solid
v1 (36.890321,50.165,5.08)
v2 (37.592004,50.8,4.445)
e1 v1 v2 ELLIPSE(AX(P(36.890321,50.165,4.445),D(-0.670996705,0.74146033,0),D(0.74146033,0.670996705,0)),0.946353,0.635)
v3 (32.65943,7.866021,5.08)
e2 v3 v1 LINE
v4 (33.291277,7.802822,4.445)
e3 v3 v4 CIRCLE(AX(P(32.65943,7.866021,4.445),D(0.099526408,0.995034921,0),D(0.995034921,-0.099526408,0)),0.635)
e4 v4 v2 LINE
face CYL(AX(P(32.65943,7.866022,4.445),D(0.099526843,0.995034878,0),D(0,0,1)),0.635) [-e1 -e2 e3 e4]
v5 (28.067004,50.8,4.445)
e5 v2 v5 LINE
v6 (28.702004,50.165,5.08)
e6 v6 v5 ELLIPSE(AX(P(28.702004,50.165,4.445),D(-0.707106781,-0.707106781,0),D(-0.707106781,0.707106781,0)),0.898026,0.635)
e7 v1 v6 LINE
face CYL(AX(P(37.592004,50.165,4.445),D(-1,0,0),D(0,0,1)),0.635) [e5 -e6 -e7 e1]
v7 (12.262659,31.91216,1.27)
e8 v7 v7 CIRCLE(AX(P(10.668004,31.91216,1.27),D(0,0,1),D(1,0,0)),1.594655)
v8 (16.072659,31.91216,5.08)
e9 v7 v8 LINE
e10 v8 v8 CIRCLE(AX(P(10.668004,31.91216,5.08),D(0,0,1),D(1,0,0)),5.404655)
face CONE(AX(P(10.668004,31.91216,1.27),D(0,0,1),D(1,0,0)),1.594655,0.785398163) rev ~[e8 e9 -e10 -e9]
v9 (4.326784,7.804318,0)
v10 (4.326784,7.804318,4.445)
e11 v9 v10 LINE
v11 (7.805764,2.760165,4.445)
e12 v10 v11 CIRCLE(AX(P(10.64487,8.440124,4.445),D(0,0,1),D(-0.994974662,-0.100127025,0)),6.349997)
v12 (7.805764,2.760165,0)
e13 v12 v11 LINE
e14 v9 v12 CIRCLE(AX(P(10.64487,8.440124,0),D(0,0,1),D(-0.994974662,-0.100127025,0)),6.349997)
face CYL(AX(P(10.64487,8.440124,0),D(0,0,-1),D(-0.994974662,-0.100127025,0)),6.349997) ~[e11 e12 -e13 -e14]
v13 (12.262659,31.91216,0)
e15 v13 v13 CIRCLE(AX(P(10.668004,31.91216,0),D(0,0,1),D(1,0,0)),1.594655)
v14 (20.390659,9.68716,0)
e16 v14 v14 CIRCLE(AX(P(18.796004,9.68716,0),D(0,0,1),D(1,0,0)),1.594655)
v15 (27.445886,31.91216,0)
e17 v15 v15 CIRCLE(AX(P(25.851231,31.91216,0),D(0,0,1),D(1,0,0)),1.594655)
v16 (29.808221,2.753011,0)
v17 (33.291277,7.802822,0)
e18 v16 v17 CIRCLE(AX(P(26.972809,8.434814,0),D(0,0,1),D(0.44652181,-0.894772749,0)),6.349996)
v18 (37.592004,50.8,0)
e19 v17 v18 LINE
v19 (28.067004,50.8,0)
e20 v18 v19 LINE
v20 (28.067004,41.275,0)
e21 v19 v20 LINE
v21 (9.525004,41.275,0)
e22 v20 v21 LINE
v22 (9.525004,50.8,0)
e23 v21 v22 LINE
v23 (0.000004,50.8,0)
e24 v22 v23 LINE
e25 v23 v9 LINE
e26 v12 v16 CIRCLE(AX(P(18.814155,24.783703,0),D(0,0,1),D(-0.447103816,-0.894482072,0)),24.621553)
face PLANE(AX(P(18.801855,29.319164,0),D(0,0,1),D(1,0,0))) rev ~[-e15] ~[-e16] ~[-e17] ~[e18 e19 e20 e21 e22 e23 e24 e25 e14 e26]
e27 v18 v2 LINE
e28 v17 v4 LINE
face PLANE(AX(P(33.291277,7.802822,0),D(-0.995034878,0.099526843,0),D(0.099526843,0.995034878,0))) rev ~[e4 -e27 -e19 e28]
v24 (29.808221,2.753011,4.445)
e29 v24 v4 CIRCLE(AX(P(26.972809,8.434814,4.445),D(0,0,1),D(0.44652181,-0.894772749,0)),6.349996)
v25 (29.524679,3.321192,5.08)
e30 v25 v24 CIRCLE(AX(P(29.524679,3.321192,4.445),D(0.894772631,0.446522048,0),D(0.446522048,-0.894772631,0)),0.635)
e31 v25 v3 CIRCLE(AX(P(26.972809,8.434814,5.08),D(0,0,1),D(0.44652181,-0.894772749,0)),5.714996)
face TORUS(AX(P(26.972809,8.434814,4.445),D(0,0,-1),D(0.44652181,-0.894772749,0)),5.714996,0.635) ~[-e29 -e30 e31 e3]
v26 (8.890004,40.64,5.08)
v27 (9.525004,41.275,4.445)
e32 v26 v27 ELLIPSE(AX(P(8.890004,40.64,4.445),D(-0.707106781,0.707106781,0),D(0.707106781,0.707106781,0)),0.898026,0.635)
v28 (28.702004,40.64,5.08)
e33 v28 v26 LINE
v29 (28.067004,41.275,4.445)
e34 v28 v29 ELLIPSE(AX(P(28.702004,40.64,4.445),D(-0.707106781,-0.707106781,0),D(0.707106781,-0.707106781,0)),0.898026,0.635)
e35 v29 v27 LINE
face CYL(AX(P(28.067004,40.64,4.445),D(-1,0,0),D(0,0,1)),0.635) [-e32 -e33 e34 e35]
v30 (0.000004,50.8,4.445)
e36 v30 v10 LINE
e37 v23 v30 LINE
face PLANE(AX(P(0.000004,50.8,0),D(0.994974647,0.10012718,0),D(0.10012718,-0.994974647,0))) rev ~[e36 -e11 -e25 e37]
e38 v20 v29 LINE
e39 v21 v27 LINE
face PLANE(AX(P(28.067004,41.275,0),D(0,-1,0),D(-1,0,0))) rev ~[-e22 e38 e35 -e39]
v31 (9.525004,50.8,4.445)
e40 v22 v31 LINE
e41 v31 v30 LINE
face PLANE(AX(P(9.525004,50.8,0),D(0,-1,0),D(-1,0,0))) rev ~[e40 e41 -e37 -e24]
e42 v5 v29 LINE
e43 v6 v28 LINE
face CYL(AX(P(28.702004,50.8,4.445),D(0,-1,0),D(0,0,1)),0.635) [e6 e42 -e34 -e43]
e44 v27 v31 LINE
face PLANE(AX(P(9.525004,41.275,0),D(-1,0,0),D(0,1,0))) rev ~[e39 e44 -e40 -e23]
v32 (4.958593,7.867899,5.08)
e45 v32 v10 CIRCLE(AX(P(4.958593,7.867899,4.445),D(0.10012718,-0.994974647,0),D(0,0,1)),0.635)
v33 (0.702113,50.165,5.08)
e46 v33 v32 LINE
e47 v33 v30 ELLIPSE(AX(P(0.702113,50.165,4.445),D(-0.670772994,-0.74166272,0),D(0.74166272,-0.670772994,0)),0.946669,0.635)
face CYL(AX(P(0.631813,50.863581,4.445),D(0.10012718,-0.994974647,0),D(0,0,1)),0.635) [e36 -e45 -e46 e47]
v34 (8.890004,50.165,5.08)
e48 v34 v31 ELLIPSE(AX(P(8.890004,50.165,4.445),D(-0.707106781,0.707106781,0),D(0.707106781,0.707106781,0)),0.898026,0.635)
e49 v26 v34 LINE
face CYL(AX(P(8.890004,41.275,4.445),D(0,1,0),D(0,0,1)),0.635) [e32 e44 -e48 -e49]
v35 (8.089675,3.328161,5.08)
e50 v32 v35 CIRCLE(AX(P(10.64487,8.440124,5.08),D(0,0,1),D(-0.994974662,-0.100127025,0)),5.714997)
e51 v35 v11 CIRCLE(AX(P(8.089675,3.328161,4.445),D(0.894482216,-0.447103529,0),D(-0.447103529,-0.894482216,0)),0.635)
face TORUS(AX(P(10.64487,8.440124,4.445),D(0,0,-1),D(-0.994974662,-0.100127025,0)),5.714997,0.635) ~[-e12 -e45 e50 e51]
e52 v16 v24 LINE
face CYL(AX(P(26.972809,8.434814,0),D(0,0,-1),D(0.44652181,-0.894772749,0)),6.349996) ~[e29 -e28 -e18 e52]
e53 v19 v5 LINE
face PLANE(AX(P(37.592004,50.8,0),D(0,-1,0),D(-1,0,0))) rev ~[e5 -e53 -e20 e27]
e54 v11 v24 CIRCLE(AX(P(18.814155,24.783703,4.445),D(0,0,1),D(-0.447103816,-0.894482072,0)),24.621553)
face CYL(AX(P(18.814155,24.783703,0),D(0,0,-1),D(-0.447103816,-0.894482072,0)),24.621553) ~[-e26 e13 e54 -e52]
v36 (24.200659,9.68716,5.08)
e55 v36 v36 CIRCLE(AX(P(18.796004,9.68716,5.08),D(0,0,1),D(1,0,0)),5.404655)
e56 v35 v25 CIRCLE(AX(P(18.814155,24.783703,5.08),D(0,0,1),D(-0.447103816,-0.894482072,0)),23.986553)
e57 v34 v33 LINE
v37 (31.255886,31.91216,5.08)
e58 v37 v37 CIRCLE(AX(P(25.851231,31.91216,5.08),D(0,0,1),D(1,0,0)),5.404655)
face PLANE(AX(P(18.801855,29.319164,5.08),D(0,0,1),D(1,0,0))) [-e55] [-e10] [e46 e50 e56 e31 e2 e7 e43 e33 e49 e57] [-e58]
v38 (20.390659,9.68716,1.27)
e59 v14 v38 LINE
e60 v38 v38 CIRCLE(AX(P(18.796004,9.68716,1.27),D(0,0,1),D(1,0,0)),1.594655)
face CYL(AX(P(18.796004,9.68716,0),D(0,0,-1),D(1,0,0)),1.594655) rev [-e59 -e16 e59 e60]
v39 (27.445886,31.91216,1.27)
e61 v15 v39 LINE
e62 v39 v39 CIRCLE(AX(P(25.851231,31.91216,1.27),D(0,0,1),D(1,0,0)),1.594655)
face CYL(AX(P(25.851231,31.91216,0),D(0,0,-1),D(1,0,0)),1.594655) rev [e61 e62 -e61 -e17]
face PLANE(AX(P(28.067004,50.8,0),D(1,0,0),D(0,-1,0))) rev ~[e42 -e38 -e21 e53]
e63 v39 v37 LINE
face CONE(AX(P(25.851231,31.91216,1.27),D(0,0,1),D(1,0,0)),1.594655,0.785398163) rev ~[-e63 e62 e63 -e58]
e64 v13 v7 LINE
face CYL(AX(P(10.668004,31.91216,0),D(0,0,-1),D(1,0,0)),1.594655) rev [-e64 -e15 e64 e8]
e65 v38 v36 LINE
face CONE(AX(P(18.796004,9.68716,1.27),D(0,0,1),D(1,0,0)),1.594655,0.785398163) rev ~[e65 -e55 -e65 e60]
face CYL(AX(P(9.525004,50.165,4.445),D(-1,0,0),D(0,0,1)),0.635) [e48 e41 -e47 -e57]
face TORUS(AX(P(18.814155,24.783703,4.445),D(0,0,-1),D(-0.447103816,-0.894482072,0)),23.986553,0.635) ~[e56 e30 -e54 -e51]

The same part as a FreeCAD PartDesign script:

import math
import FreeCAD as App
import Part
import Sketcher

V = App.Vector
Q = App.Units.Quantity


def edges_at(feature, points):
    """Names of the edges that pass closest to the given points."""
    edges = feature.Shape.Edges
    near = lambda p: min(range(len(edges)), key=lambda i: edges[i].distToShape(Part.Vertex(*p))[0])
    return sorted({f"Edge{near(p) + 1}" for p in points})

doc = App.newDocument("Part")
params = doc.addObject("Spreadsheet::Sheet", "Params")
for row, (alias, value) in enumerate([
    ("sketch1_radius", "0.2499999 in"),
    ("sketch1_width", "0.73 in"),
    ("sketch1_width2", "0.375 in"),
    ("pad1_length", "0.2 in"),
    ("chamfer_size", "0.15 in"),
    ("fillet_radius", "0.025 in"),
], start=1):
    params.set(f"A{row}", alias)
    params.set(f"B{row}", "=" + value)
    params.setAlias(f"B{row}", alias)

body = doc.addObject("PartDesign::Body", "Body")

# Sketch on XY plane
sketch1 = body.newObject("Sketcher::SketchObject", "Sketch")
sketch1.AttachmentSupport = (doc.getObject("XY_Plane"), [""])
sketch1.MapMode = "FlatFace"
sketch1.addGeometry([
    Part.LineSegment(V(0, 50.8, 0), V(4.3, 7.8, 0)),  # 0
    Part.ArcOfCircle(Part.Circle(V(10.6, 8.4, 0), V(0, 0, 1), 6.3), math.radians(-174), math.radians(-117)),  # 1
    Part.ArcOfCircle(Part.Circle(V(18.8, 24.8, 0), V(0, 0, 1), 24.6), math.radians(-117), math.radians(-63)),  # 2
    Part.ArcOfCircle(Part.Circle(V(27, 8.4, 0), V(0, 0, 1), 6.3), math.radians(-63), math.radians(-6)),  # 3
    Part.LineSegment(V(33.3, 7.8, 0), V(37.6, 50.8, 0)),  # 4
    Part.LineSegment(V(37.6, 50.8, 0), V(28.1, 50.8, 0)),  # 5
    Part.LineSegment(V(28.1, 50.8, 0), V(28.1, 41.3, 0)),  # 6
    Part.LineSegment(V(28.1, 41.3, 0), V(9.5, 41.3, 0)),  # 7
    Part.LineSegment(V(9.5, 41.3, 0), V(9.5, 50.8, 0)),  # 8
    Part.LineSegment(V(9.5, 50.8, 0), V(0, 50.8, 0)),  # 9
    Part.Circle(V(18.8, 9.7, 0), V(0, 0, 1), 1.6),  # 10
    Part.Circle(V(10.7, 31.9, 0), V(0, 0, 1), 1.6),  # 11
    Part.Circle(V(25.9, 31.9, 0), V(0, 0, 1), 1.6),  # 12
], False)
sketch1.addConstraint([
    Sketcher.Constraint("Tangent", 0, 2, 1, 1),
    Sketcher.Constraint("Tangent", 1, 2, 2, 1),
    Sketcher.Constraint("Tangent", 2, 2, 3, 1),
    Sketcher.Constraint("Tangent", 3, 2, 4, 1),
    Sketcher.Constraint("Coincident", 4, 2, 5, 1),
    Sketcher.Constraint("Coincident", 5, 2, 6, 1),
    Sketcher.Constraint("Coincident", 6, 2, 7, 1),
    Sketcher.Constraint("Coincident", 7, 2, 8, 1),
    Sketcher.Constraint("Coincident", 8, 2, 9, 1),
    Sketcher.Constraint("Coincident", 9, 2, 0, 1),
    Sketcher.Constraint("Horizontal", 5),
    Sketcher.Constraint("Vertical", 6),
    Sketcher.Constraint("Horizontal", 7),
    Sketcher.Constraint("Vertical", 8),
    Sketcher.Constraint("Horizontal", 9),
    Sketcher.Constraint("Equal", 1, 3),
    Sketcher.Constraint("Equal", 10, 11),
    Sketcher.Constraint("Equal", 11, 12),
    Sketcher.Constraint("Horizontal", 11, 3, 12, 3),
    Sketcher.Constraint("Horizontal", 5, 2, 8, 2),
    Sketcher.Constraint("Equal", 5, 9),
    Sketcher.Constraint("Equal", 9, 6),
    Sketcher.Constraint("Radius", 1, Q("0.2499999 in")),
    Sketcher.Constraint("DistanceY", -1, 1, 4, 2, Q("2 in")),
    Sketcher.Constraint("DistanceX", 7, 2, 7, 1, Q("0.73 in")),
    Sketcher.Constraint("DistanceX", 5, 2, 5, 1, Q("0.375 in")),
    Sketcher.Constraint("DistanceX", -1, 1, 10, 3, Q("0.7400002 in")),
    Sketcher.Constraint("DistanceX", -1, 1, 11, 3, Q("0.4200002 in")),
    Sketcher.Constraint("DistanceX", -1, 1, 4, 2, Q("1.4800002 in")),
    Sketcher.Constraint("Diameter", 10, 3.18931),
    Sketcher.Constraint("DistanceY", 10, 3, 11, 3, Q("0.875 in")),
    Sketcher.Constraint("Radius", 2, 24.621553),
    Sketcher.Constraint("Distance", 0, 43.212842),
    Sketcher.Constraint("Distance", 4, 43.21173),
    Sketcher.Constraint("DistanceX", -1, 1, 1, 3, 10.64487),
    Sketcher.Constraint("DistanceX", -1, 1, 3, 3, 26.972809),
    Sketcher.Constraint("DistanceY", -1, 1, 10, 3, 9.68716),
    Sketcher.Constraint("DistanceX", -1, 1, 12, 3, 25.851231),
])
sketch1.setExpression("Constraints[22]", "Params.sketch1_radius")
sketch1.setExpression("Constraints[24]", "Params.sketch1_width")
sketch1.setExpression("Constraints[25]", "Params.sketch1_width2")
pad1 = body.newObject("PartDesign::Pad", "Pad")
pad1.Profile = sketch1
pad1.setExpression("Length", "Params.pad1_length")
doc.recompute()

chamfer = body.newObject("PartDesign::Chamfer", "Chamfer")
chamfer.Base = (pad1, edges_at(pad1, [(9.073, 31.912, 5.08), (24.257, 31.912, 5.08), (17.201, 9.687, 5.08)]))
chamfer.setExpression("Size", "Params.chamfer_size")
doc.recompute()

fillet = body.newObject("PartDesign::Fillet", "Fillet")
fillet.Base = (chamfer, edges_at(chamfer, [
    (18.806, 0.162, 5.08),
    (32.2, 4.829, 5.08),
    (32.83, 50.8, 5.08),
    (9.525, 46.038, 5.08),
    (35.442, 29.301, 5.08),
    (2.163, 29.302, 5.08),
    (4.763, 50.8, 5.08),
    (28.067, 46.038, 5.08),
    (5.418, 4.835, 5.08),
    (18.796, 41.275, 5.08),
]))
fillet.setExpression("Radius", "Params.fillet_radius")

doc.recompute()
